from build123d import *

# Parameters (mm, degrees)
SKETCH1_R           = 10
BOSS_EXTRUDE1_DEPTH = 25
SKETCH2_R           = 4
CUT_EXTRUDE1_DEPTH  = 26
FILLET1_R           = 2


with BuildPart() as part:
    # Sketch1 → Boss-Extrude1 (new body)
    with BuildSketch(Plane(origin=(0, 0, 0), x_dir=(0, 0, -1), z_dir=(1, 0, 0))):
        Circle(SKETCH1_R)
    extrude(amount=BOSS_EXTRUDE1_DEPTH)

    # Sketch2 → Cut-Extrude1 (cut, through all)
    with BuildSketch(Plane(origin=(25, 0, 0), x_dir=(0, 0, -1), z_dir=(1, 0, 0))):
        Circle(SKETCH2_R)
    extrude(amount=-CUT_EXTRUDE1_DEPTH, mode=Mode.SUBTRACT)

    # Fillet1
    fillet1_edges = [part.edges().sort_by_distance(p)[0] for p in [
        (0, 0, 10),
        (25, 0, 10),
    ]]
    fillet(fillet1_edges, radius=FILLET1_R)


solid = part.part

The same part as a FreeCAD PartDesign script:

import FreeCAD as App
import Part
import Sketcher

V = App.Vector
Q = App.Units.Quantity


def edges_at(feature, points):
    """Names of the edges that pass closest to the given points."""
    edges = feature.Shape.Edges
    near = lambda p: min(range(len(edges)), key=lambda i: edges[i].distToShape(Part.Vertex(*p))[0])
    return sorted({f"Edge{near(p) + 1}" for p in points})

doc = App.newDocument("Part")
body = doc.addObject("PartDesign::Body", "Body")

# Sketch on YZ plane
sketch1 = body.newObject("Sketcher::SketchObject", "Sketch")
sketch1.AttachmentSupport = (doc.getObject("YZ_Plane"), [""])
sketch1.MapMode = "FlatFace"
sketch1.addGeometry(Part.Circle(V(0, 0, 0), V(0, 0, 1), 10), False)
sketch1.addConstraint([
    Sketcher.Constraint("Coincident", 0, 3, -1, 1),
    Sketcher.Constraint("Diameter", 0, Q("20 mm")),
])
pad1 = body.newObject("PartDesign::Pad", "Pad")
pad1.Profile = sketch1
pad1.Length = 25

# Sketch on YZ plane
sketch2 = body.newObject("Sketcher::SketchObject", "Sketch001")
sketch2.AttachmentSupport = (doc.getObject("YZ_Plane"), [""])
sketch2.MapMode = "FlatFace"
sketch2.AttachmentOffset = App.Placement(V(0, 0, 25), App.Rotation())
sketch2.addGeometry(Part.Circle(V(0, 0, 0), V(0, 0, 1), 4), False)
sketch2.addConstraint([
    Sketcher.Constraint("Coincident", 0, 3, -1, 1),
    Sketcher.Constraint("Diameter", 0, Q("8 mm")),
])
pocket1 = body.newObject("PartDesign::Pocket", "Pocket")
pocket1.Profile = sketch2
pocket1.Type = "ThroughAll"
doc.recompute()

fillet = body.newObject("PartDesign::Fillet", "Fillet")
fillet.Base = (pocket1, edges_at(pocket1, [(0, 0, 10), (25, 0, 10)]))
fillet.Radius = 2

doc.recompute()
